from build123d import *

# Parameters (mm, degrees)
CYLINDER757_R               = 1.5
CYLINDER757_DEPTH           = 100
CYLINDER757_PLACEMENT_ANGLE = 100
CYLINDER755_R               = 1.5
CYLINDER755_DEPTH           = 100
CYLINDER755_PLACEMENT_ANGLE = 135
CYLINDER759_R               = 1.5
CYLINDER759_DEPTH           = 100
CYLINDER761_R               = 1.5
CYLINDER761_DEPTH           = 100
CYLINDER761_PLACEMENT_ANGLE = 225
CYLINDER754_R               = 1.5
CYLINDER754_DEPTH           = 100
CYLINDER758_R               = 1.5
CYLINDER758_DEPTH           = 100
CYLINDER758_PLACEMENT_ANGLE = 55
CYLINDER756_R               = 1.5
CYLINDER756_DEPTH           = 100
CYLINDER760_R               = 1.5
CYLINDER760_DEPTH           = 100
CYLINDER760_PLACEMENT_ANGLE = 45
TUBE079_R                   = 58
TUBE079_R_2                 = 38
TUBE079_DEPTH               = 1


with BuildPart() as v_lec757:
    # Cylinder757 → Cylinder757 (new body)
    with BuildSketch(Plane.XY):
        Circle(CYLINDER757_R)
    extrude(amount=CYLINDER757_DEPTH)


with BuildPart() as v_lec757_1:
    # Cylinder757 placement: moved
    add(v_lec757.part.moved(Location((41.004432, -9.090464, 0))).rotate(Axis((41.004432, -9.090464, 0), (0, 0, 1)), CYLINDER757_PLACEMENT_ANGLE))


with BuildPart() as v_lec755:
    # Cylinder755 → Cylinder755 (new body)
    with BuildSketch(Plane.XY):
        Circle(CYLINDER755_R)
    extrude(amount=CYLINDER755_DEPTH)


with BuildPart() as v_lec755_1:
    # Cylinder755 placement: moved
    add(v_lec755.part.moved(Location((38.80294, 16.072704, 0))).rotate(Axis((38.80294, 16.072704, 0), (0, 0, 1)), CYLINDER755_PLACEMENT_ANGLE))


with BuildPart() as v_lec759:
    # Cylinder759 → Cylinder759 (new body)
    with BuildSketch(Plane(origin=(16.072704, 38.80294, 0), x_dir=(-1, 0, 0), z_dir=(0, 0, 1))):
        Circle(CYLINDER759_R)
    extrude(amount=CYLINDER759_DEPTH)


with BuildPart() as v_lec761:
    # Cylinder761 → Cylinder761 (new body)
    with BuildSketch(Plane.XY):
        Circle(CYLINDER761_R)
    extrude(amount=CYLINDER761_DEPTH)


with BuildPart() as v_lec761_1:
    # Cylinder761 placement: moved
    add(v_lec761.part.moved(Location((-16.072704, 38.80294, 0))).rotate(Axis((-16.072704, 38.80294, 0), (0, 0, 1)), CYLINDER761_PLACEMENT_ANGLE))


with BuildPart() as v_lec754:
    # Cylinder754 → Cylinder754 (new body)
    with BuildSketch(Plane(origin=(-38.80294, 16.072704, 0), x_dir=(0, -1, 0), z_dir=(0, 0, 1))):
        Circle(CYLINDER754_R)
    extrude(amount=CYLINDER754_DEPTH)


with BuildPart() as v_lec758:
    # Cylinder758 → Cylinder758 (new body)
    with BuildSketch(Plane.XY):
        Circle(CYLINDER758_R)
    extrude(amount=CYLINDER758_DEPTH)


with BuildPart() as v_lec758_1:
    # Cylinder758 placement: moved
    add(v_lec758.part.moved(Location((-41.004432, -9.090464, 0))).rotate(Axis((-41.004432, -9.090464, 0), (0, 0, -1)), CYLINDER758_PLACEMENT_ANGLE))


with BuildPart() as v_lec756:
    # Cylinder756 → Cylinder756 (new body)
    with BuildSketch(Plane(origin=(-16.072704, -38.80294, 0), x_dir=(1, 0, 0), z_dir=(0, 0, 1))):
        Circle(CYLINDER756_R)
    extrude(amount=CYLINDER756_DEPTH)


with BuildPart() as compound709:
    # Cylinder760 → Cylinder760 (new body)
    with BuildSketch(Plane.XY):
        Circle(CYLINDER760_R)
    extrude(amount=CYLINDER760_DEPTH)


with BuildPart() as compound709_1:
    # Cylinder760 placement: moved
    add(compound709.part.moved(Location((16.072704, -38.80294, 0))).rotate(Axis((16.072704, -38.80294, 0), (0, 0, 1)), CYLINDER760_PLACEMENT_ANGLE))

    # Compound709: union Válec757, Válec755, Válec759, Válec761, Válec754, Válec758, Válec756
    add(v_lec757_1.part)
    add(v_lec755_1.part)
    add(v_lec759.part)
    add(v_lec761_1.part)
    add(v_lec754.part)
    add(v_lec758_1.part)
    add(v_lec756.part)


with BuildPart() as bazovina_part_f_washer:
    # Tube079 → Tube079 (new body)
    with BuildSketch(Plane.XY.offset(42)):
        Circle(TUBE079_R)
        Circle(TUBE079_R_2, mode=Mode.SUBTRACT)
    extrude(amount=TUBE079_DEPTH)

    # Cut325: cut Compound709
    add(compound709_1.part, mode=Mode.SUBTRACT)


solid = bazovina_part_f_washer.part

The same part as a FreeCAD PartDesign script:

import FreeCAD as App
import Part
import Sketcher
Q = App.Units.Quantity

doc = App.newDocument("Part")
body = doc.addObject("PartDesign::Body", "Body")

# Sketch on XY plane
sketch1 = body.newObject("Sketcher::SketchObject", "Sketch")
sketch1.AttachmentSupport = (doc.getObject("XY_Plane"), [""])
sketch1.MapMode = "FlatFace"
sketch1.addGeometry(Part.Circle(App.Vector(0, 0, 0), App.Vector(0, 0, 1), 1.5), False)
sketch1.addConstraint([
    Sketcher.Constraint("Coincident", 0, 3, -1, 1),
    Sketcher.Constraint("Diameter", 0, Q("3 mm")),
])
pad1 = body.newObject("PartDesign::Pad", "Pad")
pad1.Profile = sketch1
pad1.Length = 100
body2 = doc.addObject("PartDesign::Body", "Body001")
doc.recompute()

body.Placement = App.Placement(App.Vector(41.004432, -9.090464, 0), App.Rotation(App.Vector(0, 0, 1), 100))
boolean = body2.newObject("PartDesign::Boolean", "Boolean")
boolean.Type = "Fuse"
boolean.addObjects([body])
body3 = doc.addObject("PartDesign::Body", "Body002")

# Sketch on XY plane
sketch2 = body3.newObject("Sketcher::SketchObject", "Sketch001")
sketch2.AttachmentSupport = (doc.getObject("XY_Plane002"), [""])
sketch2.MapMode = "FlatFace"
sketch2.addGeometry(Part.Circle(App.Vector(0, 0, 0), App.Vector(0, 0, 1), 1.5), False)
sketch2.addConstraint([
    Sketcher.Constraint("Coincident", 0, 3, -1, 1),
    Sketcher.Constraint("Diameter", 0, Q("3 mm")),
])
pad2 = body3.newObject("PartDesign::Pad", "Pad001")
pad2.Profile = sketch2
pad2.Length = 100
body4 = doc.addObject("PartDesign::Body", "Body003")
doc.recompute()

body3.Placement = App.Placement(App.Vector(38.80294, 16.072704, 0), App.Rotation(App.Vector(0, 0, 1), 135))
boolean2 = body4.newObject("PartDesign::Boolean", "Boolean001")
boolean2.Type = "Fuse"
boolean2.addObjects([body3])
body5 = doc.addObject("PartDesign::Body", "Body004")

# Sketch on XY plane
sketch3 = body5.newObject("Sketcher::SketchObject", "Sketch002")
sketch3.AttachmentSupport = (doc.getObject("XY_Plane004"), [""])
sketch3.MapMode = "FlatFace"
sketch3.addGeometry(Part.Circle(App.Vector(16.1, 38.8, 0), App.Vector(0, 0, 1), 1.5), False)
sketch3.addConstraint([
    Sketcher.Constraint("Diameter", 0, Q("3 mm")),
    Sketcher.Constraint("DistanceY", -1, 1, 0, 3, Q("38.80294 mm")),
    Sketcher.Constraint("DistanceX", -1, 1, 0, 3, Q("16.072704 mm")),
])
pad3 = body5.newObject("PartDesign::Pad", "Pad002")
pad3.Profile = sketch3
pad3.Length = 100
body6 = doc.addObject("PartDesign::Body", "Body005")

# Sketch on XY plane
sketch4 = body6.newObject("Sketcher::SketchObject", "Sketch003")
sketch4.AttachmentSupport = (doc.getObject("XY_Plane005"), [""])
sketch4.MapMode = "FlatFace"
sketch4.addGeometry(Part.Circle(App.Vector(0, 0, 0), App.Vector(0, 0, 1), 1.5), False)
sketch4.addConstraint([
    Sketcher.Constraint("Coincident", 0, 3, -1, 1),
    Sketcher.Constraint("Diameter", 0, Q("3 mm")),
])
pad4 = body6.newObject("PartDesign::Pad", "Pad003")
pad4.Profile = sketch4
pad4.Length = 100
body7 = doc.addObject("PartDesign::Body", "Body006")
doc.recompute()

body6.Placement = App.Placement(App.Vector(-16.072704, 38.80294, 0), App.Rotation(App.Vector(0, 0, 1), 225))
boolean3 = body7.newObject("PartDesign::Boolean", "Boolean002")
boolean3.Type = "Fuse"
boolean3.addObjects([body6])
body8 = doc.addObject("PartDesign::Body", "Body007")

# Sketch on XY plane
sketch5 = body8.newObject("Sketcher::SketchObject", "Sketch004")
sketch5.AttachmentSupport = (doc.getObject("XY_Plane007"), [""])
sketch5.MapMode = "FlatFace"
sketch5.addGeometry(Part.Circle(App.Vector(-38.8, 16.1, 0), App.Vector(0, 0, 1), 1.5), False)
sketch5.addConstraint([
    Sketcher.Constraint("Diameter", 0, Q("3 mm")),
    Sketcher.Constraint("DistanceX", 0, 3, -1, 1, Q("38.80294 mm")),
    Sketcher.Constraint("DistanceY", -1, 1, 0, 3, Q("16.072704 mm")),
])
pad5 = body8.newObject("PartDesign::Pad", "Pad004")
pad5.Profile = sketch5
pad5.Length = 100
body9 = doc.addObject("PartDesign::Body", "Body008")

# Sketch on XY plane
sketch6 = body9.newObject("Sketcher::SketchObject", "Sketch005")
sketch6.AttachmentSupport = (doc.getObject("XY_Plane008"), [""])
sketch6.MapMode = "FlatFace"
sketch6.addGeometry(Part.Circle(App.Vector(0, 0, 0), App.Vector(0, 0, 1), 1.5), False)
sketch6.addConstraint([
    Sketcher.Constraint("Coincident", 0, 3, -1, 1),
    Sketcher.Constraint("Diameter", 0, Q("3 mm")),
])
pad6 = body9.newObject("PartDesign::Pad", "Pad005")
pad6.Profile = sketch6
pad6.Length = 100
body10 = doc.addObject("PartDesign::Body", "Body009")
doc.recompute()

body9.Placement = App.Placement(App.Vector(-41.004432, -9.090464, 0), App.Rotation(App.Vector(0, 0, -1), 55))
boolean4 = body10.newObject("PartDesign::Boolean", "Boolean003")
boolean4.Type = "Fuse"
boolean4.addObjects([body9])
body11 = doc.addObject("PartDesign::Body", "Body010")

# Sketch on XY plane
sketch7 = body11.newObject("Sketcher::SketchObject", "Sketch006")
sketch7.AttachmentSupport = (doc.getObject("XY_Plane010"), [""])
sketch7.MapMode = "FlatFace"
sketch7.addGeometry(Part.Circle(App.Vector(-16.1, -38.8, 0), App.Vector(0, 0, 1), 1.5), False)
sketch7.addConstraint([
    Sketcher.Constraint("Diameter", 0, Q("3 mm")),
    Sketcher.Constraint("DistanceY", 0, 3, -1, 1, Q("38.80294 mm")),
    Sketcher.Constraint("DistanceX", 0, 3, -1, 1, Q("16.072704 mm")),
])
pad7 = body11.newObject("PartDesign::Pad", "Pad006")
pad7.Profile = sketch7
pad7.Length = 100
body12 = doc.addObject("PartDesign::Body", "Body011")

# Sketch on XY plane
sketch8 = body12.newObject("Sketcher::SketchObject", "Sketch007")
sketch8.AttachmentSupport = (doc.getObject("XY_Plane011"), [""])
sketch8.MapMode = "FlatFace"
sketch8.addGeometry(Part.Circle(App.Vector(0, 0, 0), App.Vector(0, 0, 1), 1.5), False)
sketch8.addConstraint([
    Sketcher.Constraint("Coincident", 0, 3, -1, 1),
    Sketcher.Constraint("Diameter", 0, Q("3 mm")),
])
pad8 = body12.newObject("PartDesign::Pad", "Pad007")
pad8.Profile = sketch8
pad8.Length = 100
body13 = doc.addObject("PartDesign::Body", "Body012")
body13.AllowCompound = True
doc.recompute()

body12.Placement = App.Placement(App.Vector(16.072704, -38.80294, 0), App.Rotation(App.Vector(0, 0, 1), 45))
boolean5 = body13.newObject("PartDesign::Boolean", "Boolean004")
boolean5.Type = "Fuse"
boolean5.addObjects([body12])
doc.recompute()

boolean6 = body13.newObject("PartDesign::Boolean", "Boolean005")
boolean6.Type = "Fuse"
boolean6.addObjects([body2])
doc.recompute()

boolean7 = body13.newObject("PartDesign::Boolean", "Boolean006")
boolean7.Type = "Fuse"
boolean7.addObjects([body4])
doc.recompute()

boolean8 = body13.newObject("PartDesign::Boolean", "Boolean007")
boolean8.Type = "Fuse"
boolean8.addObjects([body5])
doc.recompute()

boolean9 = body13.newObject("PartDesign::Boolean", "Boolean008")
boolean9.Type = "Fuse"
boolean9.addObjects([body7])
doc.recompute()

boolean10 = body13.newObject("PartDesign::Boolean", "Boolean009")
boolean10.Type = "Fuse"
boolean10.addObjects([body8])
doc.recompute()

boolean11 = body13.newObject("PartDesign::Boolean", "Boolean010")
boolean11.Type = "Fuse"
boolean11.addObjects([body10])
doc.recompute()

boolean12 = body13.newObject("PartDesign::Boolean", "Boolean011")
boolean12.Type = "Fuse"
boolean12.addObjects([body11])
body14 = doc.addObject("PartDesign::Body", "Body013")

# Sketch on XY plane
sketch9 = body14.newObject("Sketcher::SketchObject", "Sketch008")
sketch9.AttachmentSupport = (doc.getObject("XY_Plane013"), [""])
sketch9.MapMode = "FlatFace"
sketch9.AttachmentOffset = App.Placement(App.Vector(0, 0, 42), App.Rotation())
sketch9.addGeometry([
    Part.Circle(App.Vector(0, 0, 0), App.Vector(0, 0, 1), 58),
    Part.Circle(App.Vector(0, 0, 0), App.Vector(0, 0, 1), 38),
], False)
sketch9.addConstraint([
    Sketcher.Constraint("Coincident", 0, 3, -1, 1),
    Sketcher.Constraint("Coincident", 1, 3, -1, 1),
    Sketcher.Constraint("Diameter", 0, Q("116 mm")),
    Sketcher.Constraint("Diameter", 1, Q("76 mm")),
])
pad9 = body14.newObject("PartDesign::Pad", "Pad008")
pad9.Profile = sketch9
pad9.Length = 1
doc.recompute()

boolean13 = body14.newObject("PartDesign::Boolean", "Boolean012")
boolean13.Type = "Cut"
boolean13.addObjects([body13])

doc.recompute()
